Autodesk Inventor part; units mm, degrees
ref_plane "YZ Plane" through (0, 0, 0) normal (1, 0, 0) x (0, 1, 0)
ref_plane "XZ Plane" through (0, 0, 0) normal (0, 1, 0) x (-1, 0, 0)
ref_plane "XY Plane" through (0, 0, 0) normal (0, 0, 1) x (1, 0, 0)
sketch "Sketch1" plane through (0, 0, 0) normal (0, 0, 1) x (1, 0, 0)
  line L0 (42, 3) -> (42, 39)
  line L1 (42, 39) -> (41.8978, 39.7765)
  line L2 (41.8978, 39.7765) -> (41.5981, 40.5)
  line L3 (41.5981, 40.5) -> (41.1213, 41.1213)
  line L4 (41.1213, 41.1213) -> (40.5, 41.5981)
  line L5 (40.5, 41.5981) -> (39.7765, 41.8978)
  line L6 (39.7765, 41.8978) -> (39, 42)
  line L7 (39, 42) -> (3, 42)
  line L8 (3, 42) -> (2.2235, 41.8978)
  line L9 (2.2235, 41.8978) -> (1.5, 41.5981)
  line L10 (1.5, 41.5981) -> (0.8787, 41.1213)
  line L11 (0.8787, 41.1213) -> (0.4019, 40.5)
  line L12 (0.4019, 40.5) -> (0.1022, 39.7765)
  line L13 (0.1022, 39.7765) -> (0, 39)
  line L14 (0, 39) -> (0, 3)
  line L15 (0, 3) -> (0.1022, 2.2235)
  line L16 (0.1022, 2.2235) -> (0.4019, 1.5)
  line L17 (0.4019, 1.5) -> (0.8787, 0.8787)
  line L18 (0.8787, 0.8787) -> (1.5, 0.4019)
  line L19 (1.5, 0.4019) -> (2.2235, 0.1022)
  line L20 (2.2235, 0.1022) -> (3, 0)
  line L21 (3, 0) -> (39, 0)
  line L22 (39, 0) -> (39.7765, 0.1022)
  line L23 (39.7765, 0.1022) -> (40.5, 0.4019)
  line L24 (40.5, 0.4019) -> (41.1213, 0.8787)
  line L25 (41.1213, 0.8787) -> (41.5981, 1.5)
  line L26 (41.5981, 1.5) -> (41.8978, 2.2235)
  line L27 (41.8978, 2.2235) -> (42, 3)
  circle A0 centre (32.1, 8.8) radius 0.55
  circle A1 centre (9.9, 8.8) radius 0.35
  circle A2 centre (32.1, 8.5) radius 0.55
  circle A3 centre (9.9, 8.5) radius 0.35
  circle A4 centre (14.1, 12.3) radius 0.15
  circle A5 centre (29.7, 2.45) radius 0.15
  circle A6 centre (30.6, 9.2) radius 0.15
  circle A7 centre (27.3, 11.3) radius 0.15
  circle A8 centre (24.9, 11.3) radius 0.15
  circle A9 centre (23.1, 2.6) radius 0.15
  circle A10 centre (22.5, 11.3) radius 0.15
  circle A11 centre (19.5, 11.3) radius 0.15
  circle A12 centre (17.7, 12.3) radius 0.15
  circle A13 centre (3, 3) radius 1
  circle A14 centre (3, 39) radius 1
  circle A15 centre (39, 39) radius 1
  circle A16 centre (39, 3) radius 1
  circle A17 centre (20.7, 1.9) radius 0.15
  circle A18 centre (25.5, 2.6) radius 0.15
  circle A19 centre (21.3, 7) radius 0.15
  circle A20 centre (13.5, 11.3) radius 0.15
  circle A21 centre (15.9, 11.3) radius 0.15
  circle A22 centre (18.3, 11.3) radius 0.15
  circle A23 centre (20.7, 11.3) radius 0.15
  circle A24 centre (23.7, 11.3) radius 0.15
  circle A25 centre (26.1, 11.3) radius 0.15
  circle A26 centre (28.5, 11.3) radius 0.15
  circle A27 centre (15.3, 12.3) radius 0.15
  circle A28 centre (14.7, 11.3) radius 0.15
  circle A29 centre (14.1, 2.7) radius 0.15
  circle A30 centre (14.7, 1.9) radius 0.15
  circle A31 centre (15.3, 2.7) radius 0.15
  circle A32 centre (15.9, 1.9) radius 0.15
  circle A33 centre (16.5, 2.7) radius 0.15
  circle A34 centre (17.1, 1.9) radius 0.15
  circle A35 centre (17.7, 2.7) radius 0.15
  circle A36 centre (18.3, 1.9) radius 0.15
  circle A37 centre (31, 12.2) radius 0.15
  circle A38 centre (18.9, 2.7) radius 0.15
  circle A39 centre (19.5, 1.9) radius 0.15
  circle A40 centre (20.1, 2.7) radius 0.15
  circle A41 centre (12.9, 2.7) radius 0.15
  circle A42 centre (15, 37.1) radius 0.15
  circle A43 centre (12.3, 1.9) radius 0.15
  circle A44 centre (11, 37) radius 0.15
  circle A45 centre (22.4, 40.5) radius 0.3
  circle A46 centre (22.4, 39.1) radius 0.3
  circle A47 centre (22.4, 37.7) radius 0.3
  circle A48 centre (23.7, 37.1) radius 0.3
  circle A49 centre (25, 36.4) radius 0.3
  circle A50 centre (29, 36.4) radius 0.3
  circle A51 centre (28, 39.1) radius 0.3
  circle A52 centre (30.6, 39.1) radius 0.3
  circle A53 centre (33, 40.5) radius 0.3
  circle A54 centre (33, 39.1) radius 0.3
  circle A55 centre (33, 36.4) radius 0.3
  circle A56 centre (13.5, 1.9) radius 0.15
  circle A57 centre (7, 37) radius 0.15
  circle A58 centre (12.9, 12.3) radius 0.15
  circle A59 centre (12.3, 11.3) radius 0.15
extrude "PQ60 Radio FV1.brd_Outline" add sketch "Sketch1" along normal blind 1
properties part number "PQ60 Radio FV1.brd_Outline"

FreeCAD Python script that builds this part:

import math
import FreeCAD as App
import Part
import Sketcher


def add_polygon(sketch, points):
    """Adds a closed chain of lines whose ends are joined by coincident constraints."""
    first, n = sketch.GeometryCount, len(points)
    for a, b in zip(points, points[1:] + points[:1]):
        sketch.addGeometry(Part.LineSegment(App.Vector(*a, 0), App.Vector(*b, 0)), False)
    for i in range(n):
        sketch.addConstraint(Sketcher.Constraint("Coincident", first + i, 2, first + (i + 1) % n, 1))

doc = App.newDocument("Part")
body = doc.addObject("PartDesign::Body", "Body")

# Sketch on XY plane
sketch1 = body.newObject("Sketcher::SketchObject", "Sketch")
sketch1.AttachmentSupport = (doc.getObject("XY_Plane"), [""])
sketch1.MapMode = "FlatFace"
add_polygon(sketch1, [(41.8978, 2.2235), (42, 3), (42, 39), (41.8978, 39.7765), (41.5981, 40.5), (41.1213, 41.1213), (40.5, 41.5981), (39.7765, 41.8978), (39, 42), (3, 42), (2.2235, 41.8978), (1.5, 41.5981), (0.8787, 41.1213), (0.4019, 40.5), (0.1022, 39.7765), (0, 39), (0, 3), (0.1022, 2.2235), (0.4019, 1.5), (0.8787, 0.8787), (1.5, 0.4019), (2.2235, 0.1022), (3, 0), (39, 0), (39.7765, 0.1022), (40.5, 0.4019), (41.1213, 0.8787), (41.5981, 1.5)])  # lines 0-27
sketch1.addGeometry(Part.Circle(App.Vector(3, 3, 0), App.Vector(0, 0, 1), 1), False)  # 28
sketch1.addGeometry(Part.ArcOfCircle(Part.Circle(App.Vector(9.9, 8.8, 0), App.Vector(0, 0, 1), 0.35), math.radians(-25.376934), math.radians(205.376934)), False)  # 29
sketch1.addGeometry(Part.ArcOfCircle(Part.Circle(App.Vector(9.9, 8.5, 0), App.Vector(0, 0, 1), 0.35), math.radians(154.623066), math.radians(385.376934)), False)  # 30
sketch1.addGeometry(Part.Circle(App.Vector(12.3, 1.9, 0), App.Vector(0, 0, 1), 0.15), False)  # 31
sketch1.addGeometry(Part.Circle(App.Vector(13.5, 1.9, 0), App.Vector(0, 0, 1), 0.15), False)  # 32
sketch1.addGeometry(Part.Circle(App.Vector(14.7, 1.9, 0), App.Vector(0, 0, 1), 0.15), False)  # 33
sketch1.addGeometry(Part.Circle(App.Vector(12.9, 2.7, 0), App.Vector(0, 0, 1), 0.15), False)  # 34
sketch1.addGeometry(Part.Circle(App.Vector(14.1, 2.7, 0), App.Vector(0, 0, 1), 0.15), False)  # 35
sketch1.addGeometry(Part.Circle(App.Vector(15.3, 2.7, 0), App.Vector(0, 0, 1), 0.15), False)  # 36
sketch1.addGeometry(Part.Circle(App.Vector(15.9, 1.9, 0), App.Vector(0, 0, 1), 0.15), False)  # 37
sketch1.addGeometry(Part.Circle(App.Vector(17.1, 1.9, 0), App.Vector(0, 0, 1), 0.15), False)  # 38
sketch1.addGeometry(Part.Circle(App.Vector(18.3, 1.9, 0), App.Vector(0, 0, 1), 0.15), False)  # 39
sketch1.addGeometry(Part.Circle(App.Vector(19.5, 1.9, 0), App.Vector(0, 0, 1), 0.15), False)  # 40
sketch1.addGeometry(Part.Circle(App.Vector(20.7, 1.9, 0), App.Vector(0, 0, 1), 0.15), False)  # 41
sketch1.addGeometry(Part.Circle(App.Vector(16.5, 2.7, 0), App.Vector(0, 0, 1), 0.15), False)  # 42
sketch1.addGeometry(Part.Circle(App.Vector(17.7, 2.7, 0), App.Vector(0, 0, 1), 0.15), False)  # 43
sketch1.addGeometry(Part.Circle(App.Vector(18.9, 2.7, 0), App.Vector(0, 0, 1), 0.15), False)  # 44
sketch1.addGeometry(Part.Circle(App.Vector(20.1, 2.7, 0), App.Vector(0, 0, 1), 0.15), False)  # 45
sketch1.addGeometry(Part.Circle(App.Vector(12.3, 11.3, 0), App.Vector(0, 0, 1), 0.15), False)  # 46
sketch1.addGeometry(Part.Circle(App.Vector(12.9, 12.3, 0), App.Vector(0, 0, 1), 0.15), False)  # 47
sketch1.addGeometry(Part.Circle(App.Vector(13.5, 11.3, 0), App.Vector(0, 0, 1), 0.15), False)  # 48
sketch1.addGeometry(Part.Circle(App.Vector(14.7, 11.3, 0), App.Vector(0, 0, 1), 0.15), False)  # 49
sketch1.addGeometry(Part.Circle(App.Vector(14.1, 12.3, 0), App.Vector(0, 0, 1), 0.15), False)  # 50
sketch1.addGeometry(Part.Circle(App.Vector(15.3, 12.3, 0), App.Vector(0, 0, 1), 0.15), False)  # 51
sketch1.addGeometry(Part.Circle(App.Vector(15.9, 11.3, 0), App.Vector(0, 0, 1), 0.15), False)  # 52
sketch1.addGeometry(Part.Circle(App.Vector(18.3, 11.3, 0), App.Vector(0, 0, 1), 0.15), False)  # 53
sketch1.addGeometry(Part.Circle(App.Vector(17.7, 12.3, 0), App.Vector(0, 0, 1), 0.15), False)  # 54
sketch1.addGeometry(Part.Circle(App.Vector(19.5, 11.3, 0), App.Vector(0, 0, 1), 0.15), False)  # 55
sketch1.addGeometry(Part.Circle(App.Vector(20.7, 11.3, 0), App.Vector(0, 0, 1), 0.15), False)  # 56
sketch1.addGeometry(Part.Circle(App.Vector(23.1, 2.6, 0), App.Vector(0, 0, 1), 0.15), False)  # 57
sketch1.addGeometry(Part.Circle(App.Vector(25.5, 2.6, 0), App.Vector(0, 0, 1), 0.15), False)  # 58
sketch1.addGeometry(Part.Circle(App.Vector(29.7, 2.45, 0), App.Vector(0, 0, 1), 0.15), False)  # 59
sketch1.addGeometry(Part.Circle(App.Vector(21.3, 7, 0), App.Vector(0, 0, 1), 0.15), False)  # 60
sketch1.addGeometry(Part.Circle(App.Vector(30.6, 9.2, 0), App.Vector(0, 0, 1), 0.15), False)  # 61
sketch1.addGeometry(Part.Circle(App.Vector(39, 3, 0), App.Vector(0, 0, 1), 1), False)  # 62
sketch1.addGeometry(Part.ArcOfCircle(Part.Circle(App.Vector(32.1, 8.8, 0), App.Vector(0, 0, 1), 0.55), math.radians(-15.82662), math.radians(195.82662)), False)  # 63
sketch1.addGeometry(Part.ArcOfCircle(Part.Circle(App.Vector(32.1, 8.5, 0), App.Vector(0, 0, 1), 0.55), math.radians(164.17338), math.radians(375.82662)), False)  # 64
sketch1.addGeometry(Part.Circle(App.Vector(22.5, 11.3, 0), App.Vector(0, 0, 1), 0.15), False)  # 65
sketch1.addGeometry(Part.Circle(App.Vector(23.7, 11.3, 0), App.Vector(0, 0, 1), 0.15), False)  # 66
sketch1.addGeometry(Part.Circle(App.Vector(24.9, 11.3, 0), App.Vector(0, 0, 1), 0.15), False)  # 67
sketch1.addGeometry(Part.Circle(App.Vector(26.1, 11.3, 0), App.Vector(0, 0, 1), 0.15), False)  # 68
sketch1.addGeometry(Part.Circle(App.Vector(27.3, 11.3, 0), App.Vector(0, 0, 1), 0.15), False)  # 69
sketch1.addGeometry(Part.Circle(App.Vector(28.5, 11.3, 0), App.Vector(0, 0, 1), 0.15), False)  # 70
sketch1.addGeometry(Part.Circle(App.Vector(31, 12.2, 0), App.Vector(0, 0, 1), 0.15), False)  # 71
sketch1.addGeometry(Part.Circle(App.Vector(3, 39, 0), App.Vector(0, 0, 1), 1), False)  # 72
sketch1.addGeometry(Part.Circle(App.Vector(7, 37, 0), App.Vector(0, 0, 1), 0.15), False)  # 73
sketch1.addGeometry(Part.Circle(App.Vector(11, 37, 0), App.Vector(0, 0, 1), 0.15), False)  # 74
sketch1.addGeometry(Part.Circle(App.Vector(15, 37.1, 0), App.Vector(0, 0, 1), 0.15), False)  # 75
sketch1.addGeometry(Part.Circle(App.Vector(25, 36.4, 0), App.Vector(0, 0, 1), 0.3), False)  # 76
sketch1.addGeometry(Part.Circle(App.Vector(29, 36.4, 0), App.Vector(0, 0, 1), 0.3), False)  # 77
sketch1.addGeometry(Part.Circle(App.Vector(22.4, 37.7, 0), App.Vector(0, 0, 1), 0.3), False)  # 78
sketch1.addGeometry(Part.Circle(App.Vector(22.4, 39.1, 0), App.Vector(0, 0, 1), 0.3), False)  # 79
sketch1.addGeometry(Part.Circle(App.Vector(23.7, 37.1, 0), App.Vector(0, 0, 1), 0.3), False)  # 80
sketch1.addGeometry(Part.Circle(App.Vector(22.4, 40.5, 0), App.Vector(0, 0, 1), 0.3), False)  # 81
sketch1.addGeometry(Part.Circle(App.Vector(28, 39.1, 0), App.Vector(0, 0, 1), 0.3), False)  # 82
sketch1.addGeometry(Part.Circle(App.Vector(30.6, 39.1, 0), App.Vector(0, 0, 1), 0.3), False)  # 83
sketch1.addGeometry(Part.Circle(App.Vector(33, 36.4, 0), App.Vector(0, 0, 1), 0.3), False)  # 84
sketch1.addGeometry(Part.Circle(App.Vector(33, 39.1, 0), App.Vector(0, 0, 1), 0.3), False)  # 85
sketch1.addGeometry(Part.Circle(App.Vector(33, 40.5, 0), App.Vector(0, 0, 1), 0.3), False)  # 86
sketch1.addGeometry(Part.Circle(App.Vector(39, 39, 0), App.Vector(0, 0, 1), 1), False)  # 87
sketch1.addConstraint([
    Sketcher.Constraint("Coincident", 29, 1, 30, 2),
    Sketcher.Constraint("Coincident", 30, 1, 29, 2),
    Sketcher.Constraint("Coincident", 63, 1, 64, 2),
    Sketcher.Constraint("Coincident", 64, 1, 63, 2),
    Sketcher.Constraint("Vertical", 1),
    Sketcher.Constraint("Horizontal", 8),
    Sketcher.Constraint("Vertical", 15),
    Sketcher.Constraint("Horizontal", 22),
    Sketcher.Constraint("PointOnObject", 14, 2, -2),
    Sketcher.Constraint("PointOnObject", 21, 2, -1),
    Sketcher.Constraint("Diameter", 28, 2.0),
    Sketcher.Constraint("Diameter", 62, 2.0),
    Sketcher.Constraint("Diameter", 72, 2.0),
    Sketcher.Constraint("Diameter", 87, 2.0),
    Sketcher.Constraint("Diameter", 31, 0.3),
    Sketcher.Constraint("Diameter", 32, 0.3),
    Sketcher.Constraint("Diameter", 33, 0.3),
    Sketcher.Constraint("Diameter", 34, 0.3),
    Sketcher.Constraint("Diameter", 35, 0.3),
    Sketcher.Constraint("Diameter", 36, 0.3),
    Sketcher.Constraint("Diameter", 37, 0.3),
    Sketcher.Constraint("Diameter", 38, 0.3),
    Sketcher.Constraint("Diameter", 39, 0.3),
    Sketcher.Constraint("Diameter", 40, 0.3),
    Sketcher.Constraint("Diameter", 41, 0.3),
    Sketcher.Constraint("Diameter", 42, 0.3),
    Sketcher.Constraint("Diameter", 43, 0.3),
    Sketcher.Constraint("Diameter", 44, 0.3),
    Sketcher.Constraint("Diameter", 45, 0.3),
    Sketcher.Constraint("Diameter", 46, 0.3),
    Sketcher.Constraint("Diameter", 47, 0.3),
    Sketcher.Constraint("Diameter", 48, 0.3),
    Sketcher.Constraint("Diameter", 49, 0.3),
    Sketcher.Constraint("Diameter", 50, 0.3),
    Sketcher.Constraint("Diameter", 51, 0.3),
    Sketcher.Constraint("Diameter", 52, 0.3),
    Sketcher.Constraint("Diameter", 53, 0.3),
    Sketcher.Constraint("Diameter", 54, 0.3),
    Sketcher.Constraint("Diameter", 55, 0.3),
    Sketcher.Constraint("Diameter", 56, 0.3),
    Sketcher.Constraint("Diameter", 57, 0.3),
    Sketcher.Constraint("Diameter", 58, 0.3),
    Sketcher.Constraint("Diameter", 59, 0.3),
    Sketcher.Constraint("Diameter", 60, 0.3),
    Sketcher.Constraint("Diameter", 61, 0.3),
    Sketcher.Constraint("Diameter", 65, 0.3),
    Sketcher.Constraint("Diameter", 66, 0.3),
    Sketcher.Constraint("Diameter", 67, 0.3),
    Sketcher.Constraint("Diameter", 68, 0.3),
    Sketcher.Constraint("Diameter", 69, 0.3),
    Sketcher.Constraint("Diameter", 70, 0.3),
    Sketcher.Constraint("Diameter", 71, 0.3),
    Sketcher.Constraint("Diameter", 73, 0.3),
    Sketcher.Constraint("Diameter", 74, 0.3),
    Sketcher.Constraint("Diameter", 75, 0.3),
    Sketcher.Constraint("Diameter", 76, 0.6),
    Sketcher.Constraint("Diameter", 77, 0.6),
    Sketcher.Constraint("Diameter", 78, 0.6),
    Sketcher.Constraint("Diameter", 79, 0.6),
    Sketcher.Constraint("Diameter", 80, 0.6),
    Sketcher.Constraint("Diameter", 81, 0.6),
    Sketcher.Constraint("Diameter", 82, 0.6),
    Sketcher.Constraint("Diameter", 83, 0.6),
    Sketcher.Constraint("Diameter", 84, 0.6),
    Sketcher.Constraint("Diameter", 85, 0.6),
    Sketcher.Constraint("Diameter", 86, 0.6),
    Sketcher.Constraint("DistanceX", 8, 2, 8, 1, 36.0),
    Sketcher.Constraint("DistanceX", 22, 1, 22, 2, 36.0),
    Sketcher.Constraint("DistanceY", 1, 1, 1, 2, 36.0),
    Sketcher.Constraint("DistanceY", 15, 2, 15, 1, 36.0),
    Sketcher.Constraint("Radius", 29, 0.35),
    Sketcher.Constraint("Radius", 30, 0.35),
    Sketcher.Constraint("Radius", 63, 0.55),
    Sketcher.Constraint("Radius", 64, 0.55),
    Sketcher.Constraint("DistanceX", -1, 1, 28, 3, 3.0),
    Sketcher.Constraint("DistanceY", -1, 1, 28, 3, 3.0),
    Sketcher.Constraint("DistanceY", -1, 1, 60, 3, 7.0),
    Sketcher.Constraint("DistanceX", -1, 1, 62, 3, 39.0),
    Sketcher.Constraint("DistanceY", -1, 1, 62, 3, 3.0),
    Sketcher.Constraint("DistanceX", -1, 1, 71, 3, 31.0),
    Sketcher.Constraint("DistanceX", -1, 1, 72, 3, 3.0),
    Sketcher.Constraint("DistanceY", -1, 1, 72, 3, 39.0),
    Sketcher.Constraint("DistanceX", -1, 1, 73, 3, 7.0),
    Sketcher.Constraint("DistanceY", -1, 1, 73, 3, 37.0),
    Sketcher.Constraint("DistanceX", -1, 1, 74, 3, 11.0),
    Sketcher.Constraint("DistanceY", -1, 1, 74, 3, 37.0),
    Sketcher.Constraint("DistanceX", -1, 1, 75, 3, 15.0),
    Sketcher.Constraint("DistanceX", -1, 1, 76, 3, 25.0),
    Sketcher.Constraint("DistanceX", -1, 1, 77, 3, 29.0),
    Sketcher.Constraint("DistanceX", -1, 1, 82, 3, 28.0),
    Sketcher.Constraint("DistanceX", -1, 1, 84, 3, 33.0),
    Sketcher.Constraint("DistanceX", -1, 1, 85, 3, 33.0),
    Sketcher.Constraint("DistanceX", -1, 1, 86, 3, 33.0),
    Sketcher.Constraint("DistanceX", -1, 1, 87, 3, 39.0),
    Sketcher.Constraint("DistanceY", -1, 1, 87, 3, 39.0),
    Sketcher.Constraint("DistanceX", -1, 1, 0, 2, 42.0),
    Sketcher.Constraint("DistanceY", -1, 1, 0, 2, 3.0),
    Sketcher.Constraint("DistanceX", -1, 1, 7, 2, 39.0),
    Sketcher.Constraint("DistanceY", -1, 1, 7, 2, 42.0),
    Sketcher.Constraint("DistanceY", -1, 1, 14, 2, 39.0),
    Sketcher.Constraint("DistanceX", -1, 1, 21, 2, 3.0),
    Sketcher.Constraint("DistanceX", -1, 1, 29, 3, 9.9),
    Sketcher.Constraint("DistanceY", -1, 1, 29, 3, 8.8),
    Sketcher.Constraint("DistanceX", -1, 1, 30, 3, 9.9),
    Sketcher.Constraint("DistanceY", -1, 1, 30, 3, 8.5),
    Sketcher.Constraint("DistanceX", -1, 1, 31, 3, 12.3),
    Sketcher.Constraint("DistanceY", -1, 1, 31, 3, 1.9),
    Sketcher.Constraint("DistanceX", -1, 1, 32, 3, 13.5),
    Sketcher.Constraint("DistanceY", -1, 1, 32, 3, 1.9),
    Sketcher.Constraint("DistanceX", -1, 1, 33, 3, 14.7),
    Sketcher.Constraint("DistanceY", -1, 1, 33, 3, 1.9),
    Sketcher.Constraint("DistanceX", -1, 1, 34, 3, 12.9),
    Sketcher.Constraint("DistanceY", -1, 1, 34, 3, 2.7),
    Sketcher.Constraint("DistanceX", -1, 1, 35, 3, 14.1),
    Sketcher.Constraint("DistanceY", -1, 1, 35, 3, 2.7),
    Sketcher.Constraint("DistanceX", -1, 1, 36, 3, 15.3),
    Sketcher.Constraint("DistanceY", -1, 1, 36, 3, 2.7),
    Sketcher.Constraint("DistanceX", -1, 1, 37, 3, 15.9),
    Sketcher.Constraint("DistanceY", -1, 1, 37, 3, 1.9),
    Sketcher.Constraint("DistanceX", -1, 1, 38, 3, 17.1),
    Sketcher.Constraint("DistanceY", -1, 1, 38, 3, 1.9),
    Sketcher.Constraint("DistanceX", -1, 1, 39, 3, 18.3),
    Sketcher.Constraint("DistanceY", -1, 1, 39, 3, 1.9),
    Sketcher.Constraint("DistanceX", -1, 1, 40, 3, 19.5),
    Sketcher.Constraint("DistanceY", -1, 1, 40, 3, 1.9),
    Sketcher.Constraint("DistanceX", -1, 1, 41, 3, 20.7),
    Sketcher.Constraint("DistanceY", -1, 1, 41, 3, 1.9),
    Sketcher.Constraint("DistanceX", -1, 1, 42, 3, 16.5),
    Sketcher.Constraint("DistanceY", -1, 1, 42, 3, 2.7),
    Sketcher.Constraint("DistanceX", -1, 1, 43, 3, 17.7),
    Sketcher.Constraint("DistanceY", -1, 1, 43, 3, 2.7),
    Sketcher.Constraint("DistanceX", -1, 1, 44, 3, 18.9),
    Sketcher.Constraint("DistanceY", -1, 1, 44, 3, 2.7),
    Sketcher.Constraint("DistanceX", -1, 1, 45, 3, 20.1),
    Sketcher.Constraint("DistanceY", -1, 1, 45, 3, 2.7),
    Sketcher.Constraint("DistanceX", -1, 1, 46, 3, 12.3),
    Sketcher.Constraint("DistanceY", -1, 1, 46, 3, 11.3),
    Sketcher.Constraint("DistanceX", -1, 1, 47, 3, 12.9),
    Sketcher.Constraint("DistanceY", -1, 1, 47, 3, 12.3),
    Sketcher.Constraint("DistanceX", -1, 1, 48, 3, 13.5),
    Sketcher.Constraint("DistanceY", -1, 1, 48, 3, 11.3),
    Sketcher.Constraint("DistanceX", -1, 1, 49, 3, 14.7),
    Sketcher.Constraint("DistanceY", -1, 1, 49, 3, 11.3),
    Sketcher.Constraint("DistanceX", -1, 1, 50, 3, 14.1),
    Sketcher.Constraint("DistanceY", -1, 1, 50, 3, 12.3),
    Sketcher.Constraint("DistanceX", -1, 1, 51, 3, 15.3),
    Sketcher.Constraint("DistanceY", -1, 1, 51, 3, 12.3),
    Sketcher.Constraint("DistanceX", -1, 1, 52, 3, 15.9),
    Sketcher.Constraint("DistanceY", -1, 1, 52, 3, 11.3),
    Sketcher.Constraint("DistanceX", -1, 1, 53, 3, 18.3),
    Sketcher.Constraint("DistanceY", -1, 1, 53, 3, 11.3),
    Sketcher.Constraint("DistanceX", -1, 1, 54, 3, 17.7),
    Sketcher.Constraint("DistanceY", -1, 1, 54, 3, 12.3),
    Sketcher.Constraint("DistanceX", -1, 1, 55, 3, 19.5),
    Sketcher.Constraint("DistanceY", -1, 1, 55, 3, 11.3),
    Sketcher.Constraint("DistanceX", -1, 1, 56, 3, 20.7),
    Sketcher.Constraint("DistanceY", -1, 1, 56, 3, 11.3),
    Sketcher.Constraint("DistanceX", -1, 1, 57, 3, 23.1),
    Sketcher.Constraint("DistanceY", -1, 1, 57, 3, 2.6),
    Sketcher.Constraint("DistanceX", -1, 1, 58, 3, 25.5),
    Sketcher.Constraint("DistanceY", -1, 1, 58, 3, 2.6),
    Sketcher.Constraint("DistanceX", -1, 1, 59, 3, 29.7),
    Sketcher.Constraint("DistanceX", -1, 1, 60, 3, 21.3),
    Sketcher.Constraint("DistanceX", -1, 1, 61, 3, 30.6),
    Sketcher.Constraint("DistanceY", -1, 1, 61, 3, 9.2),
    Sketcher.Constraint("DistanceX", -1, 1, 63, 3, 32.1),
    Sketcher.Constraint("DistanceY", -1, 1, 63, 3, 8.8),
    Sketcher.Constraint("DistanceX", -1, 1, 64, 3, 32.1),
    Sketcher.Constraint("DistanceY", -1, 1, 64, 3, 8.5),
    Sketcher.Constraint("DistanceX", -1, 1, 65, 3, 22.5),
    Sketcher.Constraint("DistanceY", -1, 1, 65, 3, 11.3),
    Sketcher.Constraint("DistanceX", -1, 1, 66, 3, 23.7),
    Sketcher.Constraint("DistanceY", -1, 1, 66, 3, 11.3),
    Sketcher.Constraint("DistanceX", -1, 1, 67, 3, 24.9),
    Sketcher.Constraint("DistanceY", -1, 1, 67, 3, 11.3),
    Sketcher.Constraint("DistanceX", -1, 1, 68, 3, 26.1),
    Sketcher.Constraint("DistanceY", -1, 1, 68, 3, 11.3),
    Sketcher.Constraint("DistanceX", -1, 1, 69, 3, 27.3),
    Sketcher.Constraint("DistanceY", -1, 1, 69, 3, 11.3),
    Sketcher.Constraint("DistanceX", -1, 1, 70, 3, 28.5),
    Sketcher.Constraint("DistanceY", -1, 1, 70, 3, 11.3),
    Sketcher.Constraint("DistanceY", -1, 1, 71, 3, 12.2),
    Sketcher.Constraint("DistanceY", -1, 1, 75, 3, 37.1),
    Sketcher.Constraint("DistanceY", -1, 1, 76, 3, 36.4),
    Sketcher.Constraint("DistanceY", -1, 1, 77, 3, 36.4),
    Sketcher.Constraint("DistanceX", -1, 1, 78, 3, 22.4),
    Sketcher.Constraint("DistanceY", -1, 1, 78, 3, 37.7),
    Sketcher.Constraint("DistanceX", -1, 1, 79, 3, 22.4),
    Sketcher.Constraint("DistanceY", -1, 1, 79, 3, 39.1),
    Sketcher.Constraint("DistanceX", -1, 1, 80, 3, 23.7),
    Sketcher.Constraint("DistanceY", -1, 1, 80, 3, 37.1),
    Sketcher.Constraint("DistanceX", -1, 1, 81, 3, 22.4),
    Sketcher.Constraint("DistanceY", -1, 1, 81, 3, 40.5),
    Sketcher.Constraint("DistanceY", -1, 1, 82, 3, 39.1),
    Sketcher.Constraint("DistanceX", -1, 1, 83, 3, 30.6),
    Sketcher.Constraint("DistanceY", -1, 1, 83, 3, 39.1),
    Sketcher.Constraint("DistanceY", -1, 1, 84, 3, 36.4),
    Sketcher.Constraint("DistanceY", -1, 1, 85, 3, 39.1),
    Sketcher.Constraint("DistanceY", -1, 1, 86, 3, 40.5),
    Sketcher.Constraint("DistanceY", -1, 1, 3, 2, 40.5),
    Sketcher.Constraint("DistanceX", -1, 1, 5, 2, 40.5),
    Sketcher.Constraint("DistanceX", -1, 1, 10, 2, 1.5),
    Sketcher.Constraint("DistanceY", -1, 1, 12, 2, 40.5),
    Sketcher.Constraint("DistanceY", -1, 1, 17, 2, 1.5),
    Sketcher.Constraint("DistanceX", -1, 1, 19, 2, 1.5),
    Sketcher.Constraint("DistanceX", -1, 1, 24, 2, 40.5),
    Sketcher.Constraint("DistanceY", -1, 1, 26, 2, 1.5),
    Sketcher.Constraint("DistanceY", -1, 1, 59, 3, 2.45),
    Sketcher.Constraint("Distance", 3, 0.783),
    Sketcher.Constraint("Distance", 6, 0.783),
    Sketcher.Constraint("Distance", 10, 0.783),
    Sketcher.Constraint("Distance", 13, 0.783),
    Sketcher.Constraint("Distance", 17, 0.783),
    Sketcher.Constraint("Distance", 20, 0.783),
    Sketcher.Constraint("Distance", 24, 0.783),
    Sketcher.Constraint("Distance", 27, 0.783),
    Sketcher.Constraint("DistanceX", -1, 1, 3, 2, 41.598),
    Sketcher.Constraint("DistanceY", -1, 1, 5, 2, 41.598),
    Sketcher.Constraint("DistanceY", -1, 1, 10, 2, 41.598),
    Sketcher.Constraint("DistanceX", -1, 1, 12, 2, 0.402),
    Sketcher.Constraint("DistanceX", -1, 1, 17, 2, 0.402),
    Sketcher.Constraint("DistanceY", -1, 1, 19, 2, 0.402),
    Sketcher.Constraint("DistanceY", -1, 1, 24, 2, 0.402),
    Sketcher.Constraint("DistanceX", -1, 1, 26, 2, 41.598),
    Sketcher.Constraint("Distance", 0, 0.7832),
    Sketcher.Constraint("Distance", 2, 0.7832),
    Sketcher.Constraint("Distance", 4, 0.7832),
    Sketcher.Constraint("Distance", 5, 0.7832),
    Sketcher.Constraint("Distance", 7, 0.7832),
    Sketcher.Constraint("Distance", 9, 0.7832),
    Sketcher.Constraint("Distance", 11, 0.7832),
    Sketcher.Constraint("Distance", 12, 0.7832),
    Sketcher.Constraint("Distance", 14, 0.7832),
    Sketcher.Constraint("Distance", 16, 0.7832),
    Sketcher.Constraint("Distance", 18, 0.7832),
    Sketcher.Constraint("Distance", 19, 0.7832),
    Sketcher.Constraint("Distance", 21, 0.7832),
    Sketcher.Constraint("Distance", 23, 0.7832),
    Sketcher.Constraint("Distance", 25, 0.7832),
    Sketcher.Constraint("Distance", 26, 0.7832),
])
pad1 = body.newObject("PartDesign::Pad", "Pad")
pad1.Profile = sketch1
pad1.Length = 1

doc.recompute()
